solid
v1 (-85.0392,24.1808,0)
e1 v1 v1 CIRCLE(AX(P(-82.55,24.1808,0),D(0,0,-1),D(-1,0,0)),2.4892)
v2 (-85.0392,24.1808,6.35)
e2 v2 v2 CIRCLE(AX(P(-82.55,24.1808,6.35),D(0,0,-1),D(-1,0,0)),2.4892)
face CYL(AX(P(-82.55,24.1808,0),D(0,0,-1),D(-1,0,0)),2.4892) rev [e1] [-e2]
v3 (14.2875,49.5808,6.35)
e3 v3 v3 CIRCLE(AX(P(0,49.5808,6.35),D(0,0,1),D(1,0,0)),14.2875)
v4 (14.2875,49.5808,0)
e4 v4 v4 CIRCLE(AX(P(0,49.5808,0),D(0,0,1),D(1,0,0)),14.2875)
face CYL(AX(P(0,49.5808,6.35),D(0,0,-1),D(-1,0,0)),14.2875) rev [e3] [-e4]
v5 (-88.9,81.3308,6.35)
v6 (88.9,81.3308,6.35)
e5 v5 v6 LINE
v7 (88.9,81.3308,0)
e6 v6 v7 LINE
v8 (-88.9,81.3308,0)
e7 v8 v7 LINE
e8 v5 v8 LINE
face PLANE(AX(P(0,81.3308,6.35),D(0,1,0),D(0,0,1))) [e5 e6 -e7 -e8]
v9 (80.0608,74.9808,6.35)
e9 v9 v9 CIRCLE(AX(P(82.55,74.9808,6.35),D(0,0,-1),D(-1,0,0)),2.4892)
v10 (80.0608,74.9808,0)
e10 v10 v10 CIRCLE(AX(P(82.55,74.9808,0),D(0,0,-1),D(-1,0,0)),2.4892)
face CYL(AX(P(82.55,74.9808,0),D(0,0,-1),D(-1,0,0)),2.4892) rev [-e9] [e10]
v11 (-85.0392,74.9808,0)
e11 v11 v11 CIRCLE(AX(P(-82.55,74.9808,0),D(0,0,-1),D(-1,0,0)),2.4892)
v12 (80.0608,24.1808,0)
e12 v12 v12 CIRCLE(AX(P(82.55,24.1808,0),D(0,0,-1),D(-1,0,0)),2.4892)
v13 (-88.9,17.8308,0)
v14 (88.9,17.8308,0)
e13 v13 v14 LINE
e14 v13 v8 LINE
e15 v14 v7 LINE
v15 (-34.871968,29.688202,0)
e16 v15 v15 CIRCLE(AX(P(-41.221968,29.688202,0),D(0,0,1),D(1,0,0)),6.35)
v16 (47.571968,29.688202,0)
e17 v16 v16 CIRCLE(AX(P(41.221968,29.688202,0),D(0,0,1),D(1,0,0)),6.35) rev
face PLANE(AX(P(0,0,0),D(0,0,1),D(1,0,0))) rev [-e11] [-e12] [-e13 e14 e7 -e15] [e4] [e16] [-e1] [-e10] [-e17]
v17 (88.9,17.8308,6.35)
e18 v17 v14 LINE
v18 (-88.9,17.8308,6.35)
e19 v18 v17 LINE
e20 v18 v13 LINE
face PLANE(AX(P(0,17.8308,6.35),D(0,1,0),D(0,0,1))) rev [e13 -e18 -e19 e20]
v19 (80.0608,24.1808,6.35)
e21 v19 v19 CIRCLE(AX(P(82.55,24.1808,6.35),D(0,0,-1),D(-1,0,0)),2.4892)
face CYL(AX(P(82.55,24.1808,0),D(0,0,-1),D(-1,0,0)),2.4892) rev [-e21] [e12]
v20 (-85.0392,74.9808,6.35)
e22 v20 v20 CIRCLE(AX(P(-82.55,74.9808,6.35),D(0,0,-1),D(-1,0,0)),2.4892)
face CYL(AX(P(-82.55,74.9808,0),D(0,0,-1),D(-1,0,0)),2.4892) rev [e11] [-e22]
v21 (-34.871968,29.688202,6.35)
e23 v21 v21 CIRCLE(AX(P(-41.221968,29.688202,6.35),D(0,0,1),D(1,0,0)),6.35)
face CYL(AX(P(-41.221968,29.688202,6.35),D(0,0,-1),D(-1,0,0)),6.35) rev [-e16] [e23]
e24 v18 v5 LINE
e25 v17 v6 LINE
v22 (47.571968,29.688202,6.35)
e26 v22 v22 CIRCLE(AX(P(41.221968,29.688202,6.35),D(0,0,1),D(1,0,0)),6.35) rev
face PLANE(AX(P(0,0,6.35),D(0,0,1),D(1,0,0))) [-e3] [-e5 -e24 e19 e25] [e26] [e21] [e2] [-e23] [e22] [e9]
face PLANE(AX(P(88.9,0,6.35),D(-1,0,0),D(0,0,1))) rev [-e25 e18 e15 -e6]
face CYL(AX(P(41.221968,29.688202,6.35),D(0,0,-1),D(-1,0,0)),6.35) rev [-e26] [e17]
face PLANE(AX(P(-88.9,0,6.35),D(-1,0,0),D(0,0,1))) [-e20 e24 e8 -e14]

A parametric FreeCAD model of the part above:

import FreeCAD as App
import Part
import Sketcher

V = App.Vector
Q = App.Units.Quantity


def add_polygon(sketch, points):
    """Adds a closed chain of lines whose ends are joined by coincident constraints."""
    first, n = sketch.GeometryCount, len(points)
    for a, b in zip(points, points[1:] + points[:1]):
        sketch.addGeometry(Part.LineSegment(App.Vector(*a, 0), App.Vector(*b, 0)), False)
    for i in range(n):
        sketch.addConstraint(Sketcher.Constraint("Coincident", first + i, 2, first + (i + 1) % n, 1))

doc = App.newDocument("Part")
body = doc.addObject("PartDesign::Body", "Body")

# Sketch on XY plane
sketch1 = body.newObject("Sketcher::SketchObject", "Sketch")
sketch1.AttachmentSupport = (doc.getObject("XY_Plane"), [""])
sketch1.MapMode = "FlatFace"
add_polygon(sketch1, [(-89, 81), (-89, 18), (89, 18), (89, 81)])  # lines 0-3
sketch1.addGeometry(Part.Circle(V(-41, 30, 0), V(0, 0, 1), 6), False)  # 4
sketch1.addGeometry(Part.Circle(V(41, 30, 0), V(0, 0, 1), 6), False)  # 5
sketch1.addGeometry(Part.Circle(V(0, 50, 0), V(0, 0, 1), 14), False)  # 6
sketch1.addConstraint(Sketcher.Constraint("Vertical", 0))
sketch1.addConstraint(Sketcher.Constraint("Horizontal", 1))
sketch1.addConstraint(Sketcher.Constraint("Vertical", 2))
sketch1.addConstraint(Sketcher.Constraint("Horizontal", 3))
sketch1.addConstraint(Sketcher.Constraint("Equal", 4, 5))
sketch1.addConstraint(Sketcher.Constraint("Symmetric", 4, 3, 5, 3, -2))
sketch1.addConstraint(Sketcher.Constraint("PointOnObject", 6, 3, -2))
sketch1.addConstraint(Sketcher.Constraint("Diameter", 4, Q("0.5 in")))
sketch1.addConstraint(Sketcher.Constraint("DistanceX", 1, 1, 1, 2, Q("7 in")))
sketch1.addConstraint(Sketcher.Constraint("Diameter", 6, Q("1.125 in")))
sketch1.addConstraint(Sketcher.Constraint("DistanceY", 0, 2, 0, 1, Q("2.5 in")))
sketch1.addConstraint(Sketcher.Constraint("DistanceX", 0, 2, -1, 1, Q("3.5 in")))
sketch1.addConstraint(Sketcher.Constraint("DistanceY", 0, 2, 6, 3, Q("1.25 in")))
sketch1.addConstraint(Sketcher.Constraint("DistanceY", -1, 1, 6, 3, Q("1.952 in")))
sketch1.addConstraint(Sketcher.Constraint("DistanceY", -1, 1, 4, 3, 29.688202))
sketch1.addConstraint(Sketcher.Constraint("DistanceX", 4, 3, -1, 1, 41.221968))
pad1 = body.newObject("PartDesign::Pad", "Pad")
pad1.Profile = sketch1
pad1.Length = Q("0.25 in")

# Sketch on XY plane
sketch2 = body.newObject("Sketcher::SketchObject", "Sketch001")
sketch2.AttachmentSupport = (doc.getObject("XY_Plane"), [""])
sketch2.MapMode = "FlatFace"
sketch2.addGeometry(Part.Circle(V(82.5, 75, 0), V(0, 0, 1), 2.5), False)
sketch2.addGeometry(Part.Circle(V(82.5, 24.2, 0), V(0, 0, 1), 2.5), False)
sketch2.addGeometry(Part.Circle(V(-82.5, 24.2, 0), V(0, 0, 1), 2.5), False)
sketch2.addGeometry(Part.Circle(V(-82.5, 75, 0), V(0, 0, 1), 2.5), False)
sketch2.addConstraint(Sketcher.Constraint("Equal", 0, 1))
sketch2.addConstraint(Sketcher.Constraint("Equal", 1, 2))
sketch2.addConstraint(Sketcher.Constraint("Equal", 2, 3))
sketch2.addConstraint(Sketcher.Constraint("Symmetric", 1, 3, 2, 3, -2))
sketch2.addConstraint(Sketcher.Constraint("Symmetric", 0, 3, 3, 3, -2))
sketch2.addConstraint(Sketcher.Constraint("Vertical", 0, 3, 1, 3))
sketch2.addConstraint(Sketcher.Constraint("Diameter", 0, Q("0.196 in")))
sketch2.addConstraint(Sketcher.Constraint("DistanceY", 1, 3, 0, 3, Q("2 in")))
sketch2.addConstraint(Sketcher.Constraint("DistanceX", 2, 3, 1, 3, Q("6.5 in")))
sketch2.addConstraint(Sketcher.Constraint("DistanceY", -1, 1, 0, 3, Q("2.952 in")))
doc.recompute()
hole = body.newObject("PartDesign::Hole", "Hole")
hole.Profile = sketch2
hole.ThreadType = "None"
hole.Diameter = Q("0.196 in")
hole.DepthType = "ThroughAll"
hole.Reversed = True

doc.recompute()
